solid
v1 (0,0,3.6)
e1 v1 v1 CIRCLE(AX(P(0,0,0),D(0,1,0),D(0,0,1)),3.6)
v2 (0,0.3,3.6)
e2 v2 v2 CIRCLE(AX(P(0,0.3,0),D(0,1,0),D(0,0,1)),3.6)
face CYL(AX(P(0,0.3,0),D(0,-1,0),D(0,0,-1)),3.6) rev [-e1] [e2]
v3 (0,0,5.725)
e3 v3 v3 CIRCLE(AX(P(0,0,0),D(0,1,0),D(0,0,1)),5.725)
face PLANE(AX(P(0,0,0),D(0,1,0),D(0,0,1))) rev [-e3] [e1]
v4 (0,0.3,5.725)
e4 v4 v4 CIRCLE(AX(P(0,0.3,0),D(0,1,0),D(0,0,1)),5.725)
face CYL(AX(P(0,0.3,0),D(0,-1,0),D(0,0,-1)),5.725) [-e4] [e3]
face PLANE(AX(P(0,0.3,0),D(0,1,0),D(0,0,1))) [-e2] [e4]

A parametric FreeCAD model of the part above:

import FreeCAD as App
import Part
import Sketcher

V = App.Vector

doc = App.newDocument("Part")
body = doc.addObject("PartDesign::Body", "Body")

# Sketch on XZ plane
sketch1 = body.newObject("Sketcher::SketchObject", "Sketch")
sketch1.AttachmentSupport = (doc.getObject("XZ_Plane"), [""])
sketch1.MapMode = "FlatFace"
sketch1.addGeometry(Part.Circle(V(0, 0, 0), V(0, 0, 1), 5.725), False)
sketch1.addGeometry(Part.Circle(V(0, 0, 0), V(0, 0, 1), 3.6), False)
sketch1.addConstraint(Sketcher.Constraint("Coincident", 0, 3, -1, 1))
sketch1.addConstraint(Sketcher.Constraint("Coincident", 1, 3, -1, 1))
sketch1.addConstraint(Sketcher.Constraint("Diameter", 1, 7.2))
sketch1.addConstraint(Sketcher.Constraint("Diameter", 0, 11.45))
pad1 = body.newObject("PartDesign::Pad", "Pad")
pad1.Profile = sketch1
pad1.Length = 0.3
pad1.Reversed = True

doc.recompute()
